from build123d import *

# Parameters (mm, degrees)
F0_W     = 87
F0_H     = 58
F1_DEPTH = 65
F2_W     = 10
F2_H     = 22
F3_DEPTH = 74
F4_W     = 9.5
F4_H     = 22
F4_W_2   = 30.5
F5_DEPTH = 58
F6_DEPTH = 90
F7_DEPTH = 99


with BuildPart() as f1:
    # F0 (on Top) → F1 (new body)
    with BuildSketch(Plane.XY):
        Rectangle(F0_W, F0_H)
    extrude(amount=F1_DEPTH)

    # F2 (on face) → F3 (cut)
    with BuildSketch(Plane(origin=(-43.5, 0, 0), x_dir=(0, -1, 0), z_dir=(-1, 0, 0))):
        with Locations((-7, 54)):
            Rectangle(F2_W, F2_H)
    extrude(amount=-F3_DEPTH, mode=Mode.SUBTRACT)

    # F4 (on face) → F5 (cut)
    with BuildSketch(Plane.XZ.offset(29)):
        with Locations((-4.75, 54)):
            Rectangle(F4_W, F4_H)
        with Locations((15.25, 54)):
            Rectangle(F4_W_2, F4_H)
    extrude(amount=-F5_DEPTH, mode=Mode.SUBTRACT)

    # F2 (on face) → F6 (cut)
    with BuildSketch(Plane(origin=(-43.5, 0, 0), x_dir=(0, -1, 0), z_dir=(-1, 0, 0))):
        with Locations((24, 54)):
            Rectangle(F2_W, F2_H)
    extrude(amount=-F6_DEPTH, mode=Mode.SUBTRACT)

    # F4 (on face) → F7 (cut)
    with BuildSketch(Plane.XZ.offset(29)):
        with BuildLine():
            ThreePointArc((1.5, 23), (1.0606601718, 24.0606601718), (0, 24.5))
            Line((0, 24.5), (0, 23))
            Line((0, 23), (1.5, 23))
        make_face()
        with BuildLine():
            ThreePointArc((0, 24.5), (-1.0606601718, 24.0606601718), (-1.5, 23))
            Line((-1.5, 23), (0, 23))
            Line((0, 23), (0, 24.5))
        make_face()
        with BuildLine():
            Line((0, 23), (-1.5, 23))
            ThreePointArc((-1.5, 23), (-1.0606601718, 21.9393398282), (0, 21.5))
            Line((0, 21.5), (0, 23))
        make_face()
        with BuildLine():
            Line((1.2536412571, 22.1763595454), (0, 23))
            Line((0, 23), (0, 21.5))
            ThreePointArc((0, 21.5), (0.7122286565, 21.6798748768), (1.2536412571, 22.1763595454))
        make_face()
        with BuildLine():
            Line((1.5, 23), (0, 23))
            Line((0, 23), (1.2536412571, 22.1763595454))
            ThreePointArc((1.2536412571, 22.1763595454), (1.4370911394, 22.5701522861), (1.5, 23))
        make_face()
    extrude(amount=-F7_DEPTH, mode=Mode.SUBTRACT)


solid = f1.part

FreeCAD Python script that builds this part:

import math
import FreeCAD as App
import Part
import Sketcher


def add_polygon(sketch, points):
    """Adds a closed chain of lines whose ends are joined by coincident constraints."""
    first, n = sketch.GeometryCount, len(points)
    for a, b in zip(points, points[1:] + points[:1]):
        sketch.addGeometry(Part.LineSegment(App.Vector(*a, 0), App.Vector(*b, 0)), False)
    for i in range(n):
        sketch.addConstraint(Sketcher.Constraint("Coincident", first + i, 2, first + (i + 1) % n, 1))

doc = App.newDocument("Part")
body = doc.addObject("PartDesign::Body", "Body")

sketch1 = body.newObject("Sketcher::SketchObject", "Sketch")
sketch1.AttachmentSupport = (doc.getObject("XY_Plane"), [""])
sketch1.MapMode = "FlatFace"
add_polygon(sketch1, [(-43.5, 29), (-43.5, -29), (43.5, -29), (43.5, 29)])
sketch1.addConstraint(Sketcher.Constraint("Vertical", 0))
sketch1.addConstraint(Sketcher.Constraint("Horizontal", 1))
sketch1.addConstraint(Sketcher.Constraint("Vertical", 2))
sketch1.addConstraint(Sketcher.Constraint("Horizontal", 3))
sketch1.addConstraint(Sketcher.Constraint("Symmetric", 0, 2, 2, 2, -1, 1))
sketch1.addConstraint(Sketcher.Constraint("DistanceX", 1, 1, 1, 2, 87.0))
sketch1.addConstraint(Sketcher.Constraint("DistanceY", 0, 2, 0, 1, 58.0))
pad1 = body.newObject("PartDesign::Pad", "Pad")
pad1.Profile = sketch1
pad1.Length = 65

sketch2 = body.newObject("Sketcher::SketchObject", "Sketch001")
sketch2.AttachmentSupport = (doc.getObject("YZ_Plane"), [""])
sketch2.MapMode = "FlatFace"
sketch2.AttachmentOffset = App.Placement(App.Vector(0, 0, -43.5), App.Rotation())
add_polygon(sketch2, [(12, 65), (12, 43), (2, 43), (2, 65)])
sketch2.addConstraint(Sketcher.Constraint("Vertical", 0))
sketch2.addConstraint(Sketcher.Constraint("Horizontal", 1))
sketch2.addConstraint(Sketcher.Constraint("Vertical", 2))
sketch2.addConstraint(Sketcher.Constraint("Horizontal", 3))
sketch2.addConstraint(Sketcher.Constraint("DistanceX", 1, 2, 1, 1, 10.0))
sketch2.addConstraint(Sketcher.Constraint("DistanceY", 0, 2, 0, 1, 22.0))
sketch2.addConstraint(Sketcher.Constraint("DistanceX", -1, 1, 0, 2, 12.0))
sketch2.addConstraint(Sketcher.Constraint("DistanceY", -1, 1, 0, 2, 43.0))
pocket1 = body.newObject("PartDesign::Pocket", "Pocket")
pocket1.Profile = sketch2
pocket1.Length = 74
pocket1.Reversed = True

sketch3 = body.newObject("Sketcher::SketchObject", "Sketch002")
sketch3.AttachmentSupport = (doc.getObject("XZ_Plane"), [""])
sketch3.MapMode = "FlatFace"
sketch3.AttachmentOffset = App.Placement(App.Vector(0, 0, 29), App.Rotation())
add_polygon(sketch3, [(-9.5, 65), (-9.5, 43), (30.5, 43), (30.5, 65)])
sketch3.addConstraint(Sketcher.Constraint("Vertical", 0))
sketch3.addConstraint(Sketcher.Constraint("Horizontal", 1))
sketch3.addConstraint(Sketcher.Constraint("Vertical", 2))
sketch3.addConstraint(Sketcher.Constraint("Horizontal", 3))
sketch3.addConstraint(Sketcher.Constraint("DistanceX", 1, 1, 1, 2, 40.0))
sketch3.addConstraint(Sketcher.Constraint("DistanceY", 0, 2, 0, 1, 22.0))
sketch3.addConstraint(Sketcher.Constraint("DistanceY", -1, 1, 0, 2, 43.0))
sketch3.addConstraint(Sketcher.Constraint("DistanceX", 0, 2, -1, 1, 9.5))
pocket2 = body.newObject("PartDesign::Pocket", "Pocket001")
pocket2.Profile = sketch3
pocket2.Length = 58

sketch4 = body.newObject("Sketcher::SketchObject", "Sketch003")
sketch4.AttachmentSupport = (doc.getObject("YZ_Plane"), [""])
sketch4.MapMode = "FlatFace"
sketch4.AttachmentOffset = App.Placement(App.Vector(0, 0, -43.5), App.Rotation())
add_polygon(sketch4, [(-19, 65), (-19, 43), (-29, 43), (-29, 65)])
sketch4.addConstraint(Sketcher.Constraint("Vertical", 0))
sketch4.addConstraint(Sketcher.Constraint("Horizontal", 1))
sketch4.addConstraint(Sketcher.Constraint("Vertical", 2))
sketch4.addConstraint(Sketcher.Constraint("Horizontal", 3))
sketch4.addConstraint(Sketcher.Constraint("DistanceX", 1, 2, 1, 1, 10.0))
sketch4.addConstraint(Sketcher.Constraint("DistanceY", 0, 2, 0, 1, 22.0))
sketch4.addConstraint(Sketcher.Constraint("DistanceX", 0, 2, -1, 1, 19.0))
sketch4.addConstraint(Sketcher.Constraint("DistanceY", -1, 1, 0, 2, 43.0))
pocket3 = body.newObject("PartDesign::Pocket", "Pocket002")
pocket3.Profile = sketch4
pocket3.Length = 90
pocket3.Reversed = True

sketch5 = body.newObject("Sketcher::SketchObject", "Sketch004")
sketch5.AttachmentSupport = (doc.getObject("XZ_Plane"), [""])
sketch5.MapMode = "FlatFace"
sketch5.AttachmentOffset = App.Placement(App.Vector(0, 0, 29), App.Rotation())
sketch5.addGeometry(Part.ArcOfCircle(Part.Circle(App.Vector(0, 23, 0), App.Vector(0, 0, 1), 1.5), math.radians(0), math.radians(90)), False)
sketch5.addGeometry(Part.ArcOfCircle(Part.Circle(App.Vector(0, 23, 0), App.Vector(0, 0, 1), 1.5), math.radians(90), math.radians(180)), False)
sketch5.addGeometry(Part.ArcOfCircle(Part.Circle(App.Vector(0, 23, 0), App.Vector(0, 0, 1), 1.5), math.radians(180), math.radians(270)), False)
sketch5.addGeometry(Part.ArcOfCircle(Part.Circle(App.Vector(0, 23, 0), App.Vector(0, 0, 1), 1.5), math.radians(-90), math.radians(-33.304855)), False)
sketch5.addGeometry(Part.ArcOfCircle(Part.Circle(App.Vector(0, 23, 0), App.Vector(0, 0, 1), 1.5), math.radians(-33.304855), math.radians(0)), False)
sketch5.addConstraint(Sketcher.Constraint("Tangent", 0, 2, 1, 1))
sketch5.addConstraint(Sketcher.Constraint("Tangent", 1, 2, 2, 1))
sketch5.addConstraint(Sketcher.Constraint("Tangent", 2, 2, 3, 1))
sketch5.addConstraint(Sketcher.Constraint("Tangent", 3, 2, 4, 1))
sketch5.addConstraint(Sketcher.Constraint("Tangent", 4, 2, 0, 1))
sketch5.addConstraint(Sketcher.Constraint("Coincident", 2, 3, 0, 3))
sketch5.addConstraint(Sketcher.Constraint("Symmetric", 1, 2, 4, 2, -2))
sketch5.addConstraint(Sketcher.Constraint("PointOnObject", 0, 2, -2))
sketch5.addConstraint(Sketcher.Constraint("PointOnObject", 2, 2, -2))
sketch5.addConstraint(Sketcher.Constraint("Horizontal", 4, 3, 1, 2))
sketch5.addConstraint(Sketcher.Constraint("Radius", 0, 1.5))
sketch5.addConstraint(Sketcher.Constraint("DistanceY", -1, 1, 0, 3, 23.0))
sketch5.addConstraint(Sketcher.Constraint("DistanceX", -1, 1, 3, 2, 1.253641))
pocket4 = body.newObject("PartDesign::Pocket", "Pocket003")
pocket4.Profile = sketch5
pocket4.Length = 99

doc.recompute()
